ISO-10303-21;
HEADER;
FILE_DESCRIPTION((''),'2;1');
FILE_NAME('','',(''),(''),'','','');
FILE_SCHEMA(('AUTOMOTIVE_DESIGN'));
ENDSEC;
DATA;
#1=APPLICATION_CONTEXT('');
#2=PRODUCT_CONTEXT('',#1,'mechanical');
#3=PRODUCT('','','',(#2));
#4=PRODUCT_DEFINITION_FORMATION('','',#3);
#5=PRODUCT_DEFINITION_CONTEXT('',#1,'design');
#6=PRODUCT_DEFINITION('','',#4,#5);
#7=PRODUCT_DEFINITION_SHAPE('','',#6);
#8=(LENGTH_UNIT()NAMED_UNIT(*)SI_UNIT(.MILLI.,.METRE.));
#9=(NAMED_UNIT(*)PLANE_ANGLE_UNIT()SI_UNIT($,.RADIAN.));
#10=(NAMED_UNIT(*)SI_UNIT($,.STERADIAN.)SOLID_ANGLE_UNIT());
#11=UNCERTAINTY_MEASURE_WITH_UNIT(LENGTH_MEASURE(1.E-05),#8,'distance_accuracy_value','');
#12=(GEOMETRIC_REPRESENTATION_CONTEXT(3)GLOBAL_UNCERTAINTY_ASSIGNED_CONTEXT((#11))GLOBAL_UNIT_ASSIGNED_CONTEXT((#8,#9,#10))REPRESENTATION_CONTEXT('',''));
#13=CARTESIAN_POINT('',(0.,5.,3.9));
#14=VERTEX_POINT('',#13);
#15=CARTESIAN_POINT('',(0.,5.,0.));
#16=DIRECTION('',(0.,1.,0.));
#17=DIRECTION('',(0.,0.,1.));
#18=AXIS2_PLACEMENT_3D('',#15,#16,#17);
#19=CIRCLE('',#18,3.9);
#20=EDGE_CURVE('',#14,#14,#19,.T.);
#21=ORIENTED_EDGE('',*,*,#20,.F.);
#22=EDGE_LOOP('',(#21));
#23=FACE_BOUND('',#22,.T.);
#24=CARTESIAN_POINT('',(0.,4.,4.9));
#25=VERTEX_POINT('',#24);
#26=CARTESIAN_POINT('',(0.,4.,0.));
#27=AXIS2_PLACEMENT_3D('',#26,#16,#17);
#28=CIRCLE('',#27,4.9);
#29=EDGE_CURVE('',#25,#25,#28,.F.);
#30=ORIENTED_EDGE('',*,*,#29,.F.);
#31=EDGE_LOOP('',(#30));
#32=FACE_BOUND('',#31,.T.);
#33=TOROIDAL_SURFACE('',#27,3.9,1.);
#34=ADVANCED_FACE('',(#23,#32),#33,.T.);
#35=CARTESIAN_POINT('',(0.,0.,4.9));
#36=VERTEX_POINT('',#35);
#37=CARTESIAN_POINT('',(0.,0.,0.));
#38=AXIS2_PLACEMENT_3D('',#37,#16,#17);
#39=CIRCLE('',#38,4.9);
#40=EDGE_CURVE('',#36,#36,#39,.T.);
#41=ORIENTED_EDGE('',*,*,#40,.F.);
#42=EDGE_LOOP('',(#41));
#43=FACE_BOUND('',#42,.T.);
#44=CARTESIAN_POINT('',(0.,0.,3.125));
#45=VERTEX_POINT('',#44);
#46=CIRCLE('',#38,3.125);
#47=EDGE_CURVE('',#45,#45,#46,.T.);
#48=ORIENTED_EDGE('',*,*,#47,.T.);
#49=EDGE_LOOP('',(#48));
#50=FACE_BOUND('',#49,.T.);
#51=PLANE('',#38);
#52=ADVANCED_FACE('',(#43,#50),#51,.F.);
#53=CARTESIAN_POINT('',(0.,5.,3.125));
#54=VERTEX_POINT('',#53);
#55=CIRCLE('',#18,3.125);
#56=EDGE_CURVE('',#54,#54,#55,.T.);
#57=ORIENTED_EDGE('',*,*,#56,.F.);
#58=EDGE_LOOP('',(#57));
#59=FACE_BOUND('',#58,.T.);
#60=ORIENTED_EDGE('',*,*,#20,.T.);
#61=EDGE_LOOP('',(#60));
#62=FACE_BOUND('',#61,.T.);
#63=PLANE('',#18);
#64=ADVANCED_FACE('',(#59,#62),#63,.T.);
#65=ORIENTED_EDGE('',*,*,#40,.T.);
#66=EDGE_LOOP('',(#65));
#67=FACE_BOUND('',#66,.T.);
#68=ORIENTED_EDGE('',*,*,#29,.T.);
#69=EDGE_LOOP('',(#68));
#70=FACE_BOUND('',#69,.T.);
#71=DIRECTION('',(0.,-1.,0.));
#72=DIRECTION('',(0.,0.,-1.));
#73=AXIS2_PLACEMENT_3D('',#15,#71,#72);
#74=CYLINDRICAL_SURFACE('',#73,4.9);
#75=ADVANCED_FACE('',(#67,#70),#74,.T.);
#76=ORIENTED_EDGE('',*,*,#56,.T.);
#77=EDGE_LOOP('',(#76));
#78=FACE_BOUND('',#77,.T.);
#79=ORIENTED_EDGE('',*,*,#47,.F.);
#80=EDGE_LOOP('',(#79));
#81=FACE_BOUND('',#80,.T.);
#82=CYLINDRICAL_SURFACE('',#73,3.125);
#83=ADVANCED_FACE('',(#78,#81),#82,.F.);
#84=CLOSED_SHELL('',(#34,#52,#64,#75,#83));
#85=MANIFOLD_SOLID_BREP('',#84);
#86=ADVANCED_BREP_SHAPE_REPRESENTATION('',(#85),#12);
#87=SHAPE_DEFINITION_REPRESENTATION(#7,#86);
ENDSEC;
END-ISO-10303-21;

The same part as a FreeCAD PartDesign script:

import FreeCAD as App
import Part
import Sketcher
Q = App.Units.Quantity


def edges_at(feature, points):
    """Names of the edges that pass closest to the given points."""
    edges = feature.Shape.Edges
    near = lambda p: min(range(len(edges)), key=lambda i: edges[i].distToShape(Part.Vertex(*p))[0])
    return sorted({f"Edge{near(p) + 1}" for p in points})

doc = App.newDocument("Part")
params = doc.addObject("Spreadsheet::Sheet", "Params")
for row, (alias, value) in enumerate([
    ("sketch1_diameter", "9.8 mm"),
    ("sketch1_diameter2", "6.25 mm"),
    ("pad1_length", "5 mm"),
    ("fillet_radius", "1 mm"),
], start=1):
    params.set(f"A{row}", alias)
    params.set(f"B{row}", "=" + value)
    params.setAlias(f"B{row}", alias)

body = doc.addObject("PartDesign::Body", "Body")

# Sketch on XZ plane
sketch1 = body.newObject("Sketcher::SketchObject", "Sketch")
sketch1.AttachmentSupport = (doc.getObject("XZ_Plane"), [""])
sketch1.MapMode = "FlatFace"
sketch1.addGeometry([
    Part.Circle(App.Vector(0, 0, 0), App.Vector(0, 0, 1), 4.9),
    Part.Circle(App.Vector(0, 0, 0), App.Vector(0, 0, 1), 3.1),
], False)
sketch1.addConstraint([
    Sketcher.Constraint("Coincident", 0, 3, -1, 1),
    Sketcher.Constraint("Coincident", 1, 3, -1, 1),
    Sketcher.Constraint("Diameter", 0, Q("9.8 mm")),
    Sketcher.Constraint("Diameter", 1, Q("6.25 mm")),
])
sketch1.setExpression("Constraints[2]", "Params.sketch1_diameter")
sketch1.setExpression("Constraints[3]", "Params.sketch1_diameter2")
pad1 = body.newObject("PartDesign::Pad", "Pad")
pad1.Profile = sketch1
pad1.setExpression("Length", "Params.pad1_length")
pad1.Reversed = True
doc.recompute()

fillet = body.newObject("PartDesign::Fillet", "Fillet")
fillet.Base = (pad1, edges_at(pad1, [(-4.9, 5, 0)]))
fillet.setExpression("Radius", "Params.fillet_radius")

doc.recompute()
